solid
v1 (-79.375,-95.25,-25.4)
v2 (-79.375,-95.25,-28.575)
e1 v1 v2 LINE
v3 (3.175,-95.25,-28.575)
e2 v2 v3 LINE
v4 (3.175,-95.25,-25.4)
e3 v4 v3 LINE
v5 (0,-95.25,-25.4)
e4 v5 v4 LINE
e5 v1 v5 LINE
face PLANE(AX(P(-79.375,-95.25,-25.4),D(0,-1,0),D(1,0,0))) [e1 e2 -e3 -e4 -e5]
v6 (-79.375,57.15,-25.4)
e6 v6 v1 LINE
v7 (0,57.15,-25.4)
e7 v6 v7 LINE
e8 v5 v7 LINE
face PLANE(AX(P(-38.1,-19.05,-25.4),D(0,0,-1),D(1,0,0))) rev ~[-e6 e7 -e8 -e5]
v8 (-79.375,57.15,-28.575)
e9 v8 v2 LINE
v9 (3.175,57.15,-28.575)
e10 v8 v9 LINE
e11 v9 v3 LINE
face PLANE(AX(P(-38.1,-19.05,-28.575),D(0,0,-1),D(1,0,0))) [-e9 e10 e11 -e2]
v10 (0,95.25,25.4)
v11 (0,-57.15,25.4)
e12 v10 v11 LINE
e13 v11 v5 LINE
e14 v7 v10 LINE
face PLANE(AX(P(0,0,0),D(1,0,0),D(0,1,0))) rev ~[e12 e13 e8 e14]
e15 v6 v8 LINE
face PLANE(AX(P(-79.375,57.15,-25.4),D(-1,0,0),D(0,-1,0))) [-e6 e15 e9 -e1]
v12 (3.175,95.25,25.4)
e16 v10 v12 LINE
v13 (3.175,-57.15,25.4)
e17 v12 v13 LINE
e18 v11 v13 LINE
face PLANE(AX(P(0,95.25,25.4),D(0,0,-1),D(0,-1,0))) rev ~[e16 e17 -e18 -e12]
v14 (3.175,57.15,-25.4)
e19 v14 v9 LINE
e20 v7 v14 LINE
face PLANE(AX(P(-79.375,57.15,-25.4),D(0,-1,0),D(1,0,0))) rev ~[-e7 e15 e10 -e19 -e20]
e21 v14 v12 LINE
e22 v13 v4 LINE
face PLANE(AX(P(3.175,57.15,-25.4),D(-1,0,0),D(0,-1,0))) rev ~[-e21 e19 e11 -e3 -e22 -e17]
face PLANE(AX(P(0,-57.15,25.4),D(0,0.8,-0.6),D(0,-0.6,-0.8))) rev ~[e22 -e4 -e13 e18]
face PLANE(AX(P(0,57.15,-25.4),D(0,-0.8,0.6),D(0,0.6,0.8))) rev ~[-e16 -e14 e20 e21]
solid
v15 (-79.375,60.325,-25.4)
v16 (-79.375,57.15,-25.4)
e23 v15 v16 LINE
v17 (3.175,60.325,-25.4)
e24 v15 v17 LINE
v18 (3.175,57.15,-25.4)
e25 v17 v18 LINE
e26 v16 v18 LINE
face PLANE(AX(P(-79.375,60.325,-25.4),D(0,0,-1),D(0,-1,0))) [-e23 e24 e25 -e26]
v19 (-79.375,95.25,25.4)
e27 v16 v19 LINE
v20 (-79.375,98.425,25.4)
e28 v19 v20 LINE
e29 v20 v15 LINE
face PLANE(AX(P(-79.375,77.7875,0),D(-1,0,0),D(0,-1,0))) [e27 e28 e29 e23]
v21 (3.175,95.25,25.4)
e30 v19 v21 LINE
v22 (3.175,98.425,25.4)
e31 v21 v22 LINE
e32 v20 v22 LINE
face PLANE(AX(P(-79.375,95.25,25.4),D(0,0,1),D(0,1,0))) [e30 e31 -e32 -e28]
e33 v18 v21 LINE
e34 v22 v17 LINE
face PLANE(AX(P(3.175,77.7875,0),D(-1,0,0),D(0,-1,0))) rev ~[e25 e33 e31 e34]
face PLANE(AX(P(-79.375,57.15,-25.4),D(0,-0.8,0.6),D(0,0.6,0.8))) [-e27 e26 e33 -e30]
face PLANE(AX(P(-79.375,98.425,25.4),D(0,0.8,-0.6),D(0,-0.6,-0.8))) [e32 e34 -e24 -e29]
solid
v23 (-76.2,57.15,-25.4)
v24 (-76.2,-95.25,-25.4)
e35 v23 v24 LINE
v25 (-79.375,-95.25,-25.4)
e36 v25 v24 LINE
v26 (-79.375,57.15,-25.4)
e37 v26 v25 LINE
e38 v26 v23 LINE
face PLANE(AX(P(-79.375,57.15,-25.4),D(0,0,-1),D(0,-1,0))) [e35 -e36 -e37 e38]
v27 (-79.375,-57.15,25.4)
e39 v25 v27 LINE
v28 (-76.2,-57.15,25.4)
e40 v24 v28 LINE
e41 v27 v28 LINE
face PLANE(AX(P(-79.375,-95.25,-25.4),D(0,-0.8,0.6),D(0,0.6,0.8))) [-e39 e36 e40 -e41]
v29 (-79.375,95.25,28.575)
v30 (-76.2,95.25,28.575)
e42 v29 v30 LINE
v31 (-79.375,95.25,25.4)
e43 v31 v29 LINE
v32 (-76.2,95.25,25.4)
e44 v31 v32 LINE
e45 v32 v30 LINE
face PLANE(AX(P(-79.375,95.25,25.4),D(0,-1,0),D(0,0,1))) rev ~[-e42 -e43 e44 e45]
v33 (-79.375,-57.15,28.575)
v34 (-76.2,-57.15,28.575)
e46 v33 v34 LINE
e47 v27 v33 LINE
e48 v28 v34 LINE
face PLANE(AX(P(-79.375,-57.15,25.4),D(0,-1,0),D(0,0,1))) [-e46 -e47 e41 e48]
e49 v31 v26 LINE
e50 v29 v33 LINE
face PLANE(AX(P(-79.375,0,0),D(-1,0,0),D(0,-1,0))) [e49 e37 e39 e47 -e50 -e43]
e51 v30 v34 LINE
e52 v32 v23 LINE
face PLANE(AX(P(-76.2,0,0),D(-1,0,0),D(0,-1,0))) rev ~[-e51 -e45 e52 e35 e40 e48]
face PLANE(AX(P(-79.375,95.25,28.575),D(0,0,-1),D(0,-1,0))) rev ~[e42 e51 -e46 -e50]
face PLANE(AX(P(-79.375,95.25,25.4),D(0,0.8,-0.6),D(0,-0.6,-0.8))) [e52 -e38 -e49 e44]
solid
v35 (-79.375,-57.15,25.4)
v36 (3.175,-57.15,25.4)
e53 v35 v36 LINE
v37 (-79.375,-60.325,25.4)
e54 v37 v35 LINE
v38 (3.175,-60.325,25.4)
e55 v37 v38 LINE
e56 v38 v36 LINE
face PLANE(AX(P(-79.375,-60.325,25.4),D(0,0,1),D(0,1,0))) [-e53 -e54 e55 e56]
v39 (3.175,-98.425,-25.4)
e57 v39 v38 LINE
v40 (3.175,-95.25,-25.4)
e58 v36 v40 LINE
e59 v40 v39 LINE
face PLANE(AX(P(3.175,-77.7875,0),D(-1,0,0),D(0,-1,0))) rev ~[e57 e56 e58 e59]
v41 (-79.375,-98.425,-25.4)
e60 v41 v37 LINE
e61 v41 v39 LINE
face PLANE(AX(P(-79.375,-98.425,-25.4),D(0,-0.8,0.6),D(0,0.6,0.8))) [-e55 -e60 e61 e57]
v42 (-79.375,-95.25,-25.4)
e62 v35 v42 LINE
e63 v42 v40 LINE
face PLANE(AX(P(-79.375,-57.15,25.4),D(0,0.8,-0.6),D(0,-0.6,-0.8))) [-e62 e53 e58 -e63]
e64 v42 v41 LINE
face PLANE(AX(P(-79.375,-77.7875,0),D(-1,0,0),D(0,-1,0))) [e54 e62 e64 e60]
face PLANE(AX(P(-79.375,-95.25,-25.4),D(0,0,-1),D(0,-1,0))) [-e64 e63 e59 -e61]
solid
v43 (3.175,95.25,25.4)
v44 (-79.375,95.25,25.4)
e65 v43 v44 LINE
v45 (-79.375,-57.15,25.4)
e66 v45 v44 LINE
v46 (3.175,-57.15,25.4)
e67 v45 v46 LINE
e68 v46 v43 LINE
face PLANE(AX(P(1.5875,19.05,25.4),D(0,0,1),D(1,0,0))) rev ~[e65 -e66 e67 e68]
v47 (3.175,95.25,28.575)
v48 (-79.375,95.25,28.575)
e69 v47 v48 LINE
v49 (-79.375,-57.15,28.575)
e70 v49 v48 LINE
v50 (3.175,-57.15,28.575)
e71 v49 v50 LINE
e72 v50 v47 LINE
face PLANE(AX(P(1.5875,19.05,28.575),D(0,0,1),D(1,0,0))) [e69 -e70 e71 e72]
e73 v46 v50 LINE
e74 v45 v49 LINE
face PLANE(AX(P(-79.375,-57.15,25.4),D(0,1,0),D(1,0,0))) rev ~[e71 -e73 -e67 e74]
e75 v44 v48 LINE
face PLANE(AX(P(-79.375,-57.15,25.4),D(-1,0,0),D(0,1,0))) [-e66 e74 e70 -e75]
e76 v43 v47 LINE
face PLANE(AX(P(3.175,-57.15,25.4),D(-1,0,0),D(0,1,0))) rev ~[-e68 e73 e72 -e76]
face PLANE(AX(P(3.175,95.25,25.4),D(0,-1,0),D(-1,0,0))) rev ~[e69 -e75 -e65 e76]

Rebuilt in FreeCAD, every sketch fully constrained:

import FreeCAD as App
import Part
import Sketcher
Q = App.Units.Quantity

doc = App.newDocument("Part")
params = doc.addObject("Spreadsheet::Sheet", "Params")
for row, (alias, value) in enumerate([
    ("sketch1_width", "6 in"),
    ("sketch1_length", "2.5 in"),
    ("pad1_length", "0.125 in"),
    ("sketch2_height", "6 in"),
    ("sketch2_width", "3.25 in"),
    ("pad2_length", "0.125 in"),
    ("sketch3_height", "6 in"),
    ("sketch3_width", "3.25 in"),
    ("pad3_length", "0.125 in"),
    ("sketch4_width", "6 in"),
    ("sketch4_length", "2.5 in"),
    ("sketch4_height", "0.125 in"),
    ("pad4_length", "0.125 in"),
    ("sketch5_length", "2.5 in"),
    ("sketch5_width", "0.125 in"),
    ("pad5_length", "3.25 in"),
    ("sketch6_length", "2.5 in"),
    ("sketch6_width", "0.125 in"),
    ("pad6_length", "3.25 in"),
], start=1):
    params.set(f"A{row}", alias)
    params.set(f"B{row}", "=" + value)
    params.setAlias(f"B{row}", alias)

body = doc.addObject("PartDesign::Body", "Body")

# Sketch on YZ plane
sketch1 = body.newObject("Sketcher::SketchObject", "Sketch")
sketch1.AttachmentSupport = (doc.getObject("YZ_Plane"), [""])
sketch1.MapMode = "FlatFace"
sketch1.addGeometry([
    Part.LineSegment(App.Vector(57, -25, 0), App.Vector(95, 25, 0)),
    Part.LineSegment(App.Vector(95, 25, 0), App.Vector(-57, 25, 0)),
    Part.LineSegment(App.Vector(-57, 25, 0), App.Vector(-95, -25, 0)),
    Part.LineSegment(App.Vector(-95, -25, 0), App.Vector(57, -25, 0)),
], False)
sketch1.addConstraint([
    Sketcher.Constraint("Coincident", 0, 2, 1, 1),
    Sketcher.Constraint("Coincident", 1, 2, 2, 1),
    Sketcher.Constraint("Coincident", 2, 2, 3, 1),
    Sketcher.Constraint("Coincident", 3, 2, 0, 1),
    Sketcher.Constraint("Horizontal", 1),
    Sketcher.Constraint("Horizontal", 3),
    Sketcher.Constraint("Symmetric", 0, 2, 2, 2, -1, 1),
    Sketcher.Constraint("Parallel", 0, 2),
    Sketcher.Constraint("DistanceX", 1, 2, 1, 1, Q("6 in")),
    Sketcher.Constraint("DistanceY", -1, 1, 0, 2, Q("1 in")),
    Sketcher.Constraint("Distance", 0, Q("2.5 in")),
])
sketch1.setExpression("Constraints[8]", "Params.sketch1_width")
sketch1.setExpression("Constraints[10]", "Params.sketch1_length")
pad1 = body.newObject("PartDesign::Pad", "Pad")
pad1.Profile = sketch1
pad1.setExpression("Length", "Params.pad1_length")

# Sketch on XY plane
sketch2 = body.newObject("Sketcher::SketchObject", "Sketch001")
sketch2.AttachmentSupport = (doc.getObject("XY_Plane"), [""])
sketch2.MapMode = "FlatFace"
sketch2.AttachmentOffset = App.Placement(App.Vector(0, 0, -1 * 25.4), App.Rotation())
sketch2.addGeometry([
    Part.LineSegment(App.Vector(-79, -95, 0), App.Vector(-79, 57, 0)),
    Part.LineSegment(App.Vector(-79, 57, 0), App.Vector(3, 57, 0)),
    Part.LineSegment(App.Vector(3, 57, 0), App.Vector(3, -95, 0)),
    Part.LineSegment(App.Vector(3, -95, 0), App.Vector(-79, -95, 0)),
], False)
sketch2.addConstraint([
    Sketcher.Constraint("Coincident", 0, 2, 1, 1),
    Sketcher.Constraint("Coincident", 1, 2, 2, 1),
    Sketcher.Constraint("Coincident", 2, 2, 3, 1),
    Sketcher.Constraint("Coincident", 3, 2, 0, 1),
    Sketcher.Constraint("Vertical", 0),
    Sketcher.Constraint("Horizontal", 1),
    Sketcher.Constraint("Vertical", 2),
    Sketcher.Constraint("Horizontal", 3),
    Sketcher.Constraint("DistanceY", 0, 1, 0, 2, Q("6 in")),
    Sketcher.Constraint("DistanceX", 1, 1, 1, 2, Q("3.25 in")),
    Sketcher.Constraint("DistanceY", -1, 1, 0, 2, Q("2.25 in")),
    Sketcher.Constraint("DistanceX", 0, 2, -1, 1, Q("3.125 in")),
])
sketch2.setExpression("Constraints[8]", "Params.sketch2_height")
sketch2.setExpression("Constraints[9]", "Params.sketch2_width")
pad2 = body.newObject("PartDesign::Pad", "Pad001")
pad2.Profile = sketch2
pad2.setExpression("Length", "Params.pad2_length")
pad2.Reversed = True
body2 = doc.addObject("PartDesign::Body", "Body001")

# Sketch on XY plane
sketch3 = body2.newObject("Sketcher::SketchObject", "Sketch002")
sketch3.AttachmentSupport = (doc.getObject("XY_Plane001"), [""])
sketch3.MapMode = "FlatFace"
sketch3.AttachmentOffset = App.Placement(App.Vector(0, 0, 1 * 25.4), App.Rotation())
sketch3.addGeometry([
    Part.LineSegment(App.Vector(3, -57, 0), App.Vector(3, 95, 0)),
    Part.LineSegment(App.Vector(3, 95, 0), App.Vector(-79, 95, 0)),
    Part.LineSegment(App.Vector(-79, 95, 0), App.Vector(-79, -57, 0)),
    Part.LineSegment(App.Vector(-79, -57, 0), App.Vector(3, -57, 0)),
], False)
sketch3.addConstraint([
    Sketcher.Constraint("Coincident", 0, 2, 1, 1),
    Sketcher.Constraint("Coincident", 1, 2, 2, 1),
    Sketcher.Constraint("Coincident", 2, 2, 3, 1),
    Sketcher.Constraint("Coincident", 3, 2, 0, 1),
    Sketcher.Constraint("Vertical", 0),
    Sketcher.Constraint("Horizontal", 1),
    Sketcher.Constraint("Vertical", 2),
    Sketcher.Constraint("Horizontal", 3),
    Sketcher.Constraint("DistanceY", 0, 1, 0, 2, Q("6 in")),
    Sketcher.Constraint("DistanceX", 1, 2, 1, 1, Q("3.25 in")),
    Sketcher.Constraint("DistanceY", -1, 1, 0, 2, Q("3.75 in")),
    Sketcher.Constraint("DistanceX", -1, 1, 0, 2, Q("0.125 in")),
])
sketch3.setExpression("Constraints[8]", "Params.sketch3_height")
sketch3.setExpression("Constraints[9]", "Params.sketch3_width")
pad3 = body2.newObject("PartDesign::Pad", "Pad002")
pad3.Profile = sketch3
pad3.setExpression("Length", "Params.pad3_length")
body3 = doc.addObject("PartDesign::Body", "Body002")

# Sketch on YZ plane
sketch4 = body3.newObject("Sketcher::SketchObject", "Sketch003")
sketch4.AttachmentSupport = (doc.getObject("YZ_Plane002"), [""])
sketch4.MapMode = "FlatFace"
sketch4.AttachmentOffset = App.Placement(App.Vector(0, 0, -3.125 * 25.4), App.Rotation())
sketch4.addGeometry([
    Part.LineSegment(App.Vector(95.2, 25.4, 0), App.Vector(57.1, -25.4, 0)),  # 0
    Part.LineSegment(App.Vector(57.1, -25.4, 0), App.Vector(-95.2, -25.4, 0)),  # 1
    Part.LineSegment(App.Vector(-95.2, -25.4, 0), App.Vector(-57.1, 25.4, 0)),  # 2
    Part.LineSegment(App.Vector(-57.1, 25.4, 0), App.Vector(-57.1, 28.6, 0)),  # 3
    Part.LineSegment(App.Vector(-57.1, 28.6, 0), App.Vector(95.2, 28.6, 0)),  # 4
    Part.LineSegment(App.Vector(95.2, 28.6, 0), App.Vector(95.2, 25.4, 0)),  # 5
], False)
sketch4.addConstraint([
    Sketcher.Constraint("Coincident", 0, 2, 1, 1),
    Sketcher.Constraint("Coincident", 1, 2, 2, 1),
    Sketcher.Constraint("Coincident", 2, 2, 3, 1),
    Sketcher.Constraint("Coincident", 3, 2, 4, 1),
    Sketcher.Constraint("Coincident", 4, 2, 5, 1),
    Sketcher.Constraint("Coincident", 5, 2, 0, 1),
    Sketcher.Constraint("Horizontal", 1),
    Sketcher.Constraint("Vertical", 3),
    Sketcher.Constraint("Horizontal", 4),
    Sketcher.Constraint("Vertical", 5),
    Sketcher.Constraint("Symmetric", 0, 2, 2, 2, -1, 1),
    Sketcher.Constraint("Symmetric", 1, 2, 5, 2, -1, 1),
    Sketcher.Constraint("DistanceX", 1, 2, 1, 1, Q("6 in")),
    Sketcher.Constraint("DistanceY", 0, 2, -1, 1, Q("1 in")),
    Sketcher.Constraint("Distance", 0, Q("2.5 in")),
    Sketcher.Constraint("DistanceY", 3, 1, 3, 2, Q("0.125 in")),
])
sketch4.setExpression("Constraints[12]", "Params.sketch4_width")
sketch4.setExpression("Constraints[14]", "Params.sketch4_length")
sketch4.setExpression("Constraints[15]", "Params.sketch4_height")
pad4 = body3.newObject("PartDesign::Pad", "Pad003")
pad4.Profile = sketch4
pad4.setExpression("Length", "Params.pad4_length")
body4 = doc.addObject("PartDesign::Body", "Body003")

# Sketch on YZ plane
sketch5 = body4.newObject("Sketcher::SketchObject", "Sketch004")
sketch5.AttachmentSupport = (doc.getObject("YZ_Plane003"), [""])
sketch5.MapMode = "FlatFace"
sketch5.AttachmentOffset = App.Placement(App.Vector(0, 0, -3.125 * 25.4), App.Rotation())
sketch5.addGeometry([
    Part.LineSegment(App.Vector(98.4, 25.4, 0), App.Vector(60.3, -25.4, 0)),
    Part.LineSegment(App.Vector(60.3, -25.4, 0), App.Vector(57.1, -25.4, 0)),
    Part.LineSegment(App.Vector(57.1, -25.4, 0), App.Vector(95.2, 25.4, 0)),
    Part.LineSegment(App.Vector(95.2, 25.4, 0), App.Vector(98.4, 25.4, 0)),
], False)
sketch5.addConstraint([
    Sketcher.Constraint("Coincident", 0, 2, 1, 1),
    Sketcher.Constraint("Coincident", 1, 2, 2, 1),
    Sketcher.Constraint("Coincident", 2, 2, 3, 1),
    Sketcher.Constraint("Coincident", 3, 2, 0, 1),
    Sketcher.Constraint("Horizontal", 1),
    Sketcher.Constraint("Horizontal", 3),
    Sketcher.Constraint("Parallel", 0, 2),
    Sketcher.Constraint("DistanceY", 0, 2, -1, 1, Q("1 in")),
    Sketcher.Constraint("DistanceY", -1, 1, 2, 2, Q("1 in")),
    Sketcher.Constraint("Distance", 0, Q("2.5 in")),
    Sketcher.Constraint("DistanceX", 1, 2, 1, 1, Q("0.125 in")),
    Sketcher.Constraint("DistanceX", -1, 1, 1, 2, Q("2.25 in")),
])
sketch5.setExpression("Constraints[9]", "Params.sketch5_length")
sketch5.setExpression("Constraints[10]", "Params.sketch5_width")
pad5 = body4.newObject("PartDesign::Pad", "Pad004")
pad5.Profile = sketch5
pad5.setExpression("Length", "Params.pad5_length")
body5 = doc.addObject("PartDesign::Body", "Body004")

# Sketch on YZ plane
sketch6 = body5.newObject("Sketcher::SketchObject", "Sketch005")
sketch6.AttachmentSupport = (doc.getObject("YZ_Plane004"), [""])
sketch6.MapMode = "FlatFace"
sketch6.AttachmentOffset = App.Placement(App.Vector(0, 0, -3.125 * 25.4), App.Rotation())
sketch6.addGeometry([
    Part.LineSegment(App.Vector(-60.3, 25.4, 0), App.Vector(-57.1, 25.4, 0)),
    Part.LineSegment(App.Vector(-57.1, 25.4, 0), App.Vector(-95.2, -25.4, 0)),
    Part.LineSegment(App.Vector(-95.2, -25.4, 0), App.Vector(-98.4, -25.4, 0)),
    Part.LineSegment(App.Vector(-98.4, -25.4, 0), App.Vector(-60.3, 25.4, 0)),
], False)
sketch6.addConstraint([
    Sketcher.Constraint("Coincident", 0, 2, 1, 1),
    Sketcher.Constraint("Coincident", 1, 2, 2, 1),
    Sketcher.Constraint("Coincident", 2, 2, 3, 1),
    Sketcher.Constraint("Coincident", 3, 2, 0, 1),
    Sketcher.Constraint("Horizontal", 0),
    Sketcher.Constraint("Horizontal", 2),
    Sketcher.Constraint("Parallel", 1, 3),
    Sketcher.Constraint("DistanceY", -1, 1, 0, 2, Q("1 in")),
    Sketcher.Constraint("DistanceY", 1, 2, -1, 1, Q("1 in")),
    Sketcher.Constraint("Distance", 1, Q("2.5 in")),
    Sketcher.Constraint("DistanceX", 0, 1, 0, 2, Q("0.125 in")),
    Sketcher.Constraint("DistanceX", 0, 2, -1, 1, Q("2.25 in")),
])
sketch6.setExpression("Constraints[9]", "Params.sketch6_length")
sketch6.setExpression("Constraints[10]", "Params.sketch6_width")
pad6 = body5.newObject("PartDesign::Pad", "Pad005")
pad6.Profile = sketch6
pad6.setExpression("Length", "Params.pad6_length")

doc.recompute()
